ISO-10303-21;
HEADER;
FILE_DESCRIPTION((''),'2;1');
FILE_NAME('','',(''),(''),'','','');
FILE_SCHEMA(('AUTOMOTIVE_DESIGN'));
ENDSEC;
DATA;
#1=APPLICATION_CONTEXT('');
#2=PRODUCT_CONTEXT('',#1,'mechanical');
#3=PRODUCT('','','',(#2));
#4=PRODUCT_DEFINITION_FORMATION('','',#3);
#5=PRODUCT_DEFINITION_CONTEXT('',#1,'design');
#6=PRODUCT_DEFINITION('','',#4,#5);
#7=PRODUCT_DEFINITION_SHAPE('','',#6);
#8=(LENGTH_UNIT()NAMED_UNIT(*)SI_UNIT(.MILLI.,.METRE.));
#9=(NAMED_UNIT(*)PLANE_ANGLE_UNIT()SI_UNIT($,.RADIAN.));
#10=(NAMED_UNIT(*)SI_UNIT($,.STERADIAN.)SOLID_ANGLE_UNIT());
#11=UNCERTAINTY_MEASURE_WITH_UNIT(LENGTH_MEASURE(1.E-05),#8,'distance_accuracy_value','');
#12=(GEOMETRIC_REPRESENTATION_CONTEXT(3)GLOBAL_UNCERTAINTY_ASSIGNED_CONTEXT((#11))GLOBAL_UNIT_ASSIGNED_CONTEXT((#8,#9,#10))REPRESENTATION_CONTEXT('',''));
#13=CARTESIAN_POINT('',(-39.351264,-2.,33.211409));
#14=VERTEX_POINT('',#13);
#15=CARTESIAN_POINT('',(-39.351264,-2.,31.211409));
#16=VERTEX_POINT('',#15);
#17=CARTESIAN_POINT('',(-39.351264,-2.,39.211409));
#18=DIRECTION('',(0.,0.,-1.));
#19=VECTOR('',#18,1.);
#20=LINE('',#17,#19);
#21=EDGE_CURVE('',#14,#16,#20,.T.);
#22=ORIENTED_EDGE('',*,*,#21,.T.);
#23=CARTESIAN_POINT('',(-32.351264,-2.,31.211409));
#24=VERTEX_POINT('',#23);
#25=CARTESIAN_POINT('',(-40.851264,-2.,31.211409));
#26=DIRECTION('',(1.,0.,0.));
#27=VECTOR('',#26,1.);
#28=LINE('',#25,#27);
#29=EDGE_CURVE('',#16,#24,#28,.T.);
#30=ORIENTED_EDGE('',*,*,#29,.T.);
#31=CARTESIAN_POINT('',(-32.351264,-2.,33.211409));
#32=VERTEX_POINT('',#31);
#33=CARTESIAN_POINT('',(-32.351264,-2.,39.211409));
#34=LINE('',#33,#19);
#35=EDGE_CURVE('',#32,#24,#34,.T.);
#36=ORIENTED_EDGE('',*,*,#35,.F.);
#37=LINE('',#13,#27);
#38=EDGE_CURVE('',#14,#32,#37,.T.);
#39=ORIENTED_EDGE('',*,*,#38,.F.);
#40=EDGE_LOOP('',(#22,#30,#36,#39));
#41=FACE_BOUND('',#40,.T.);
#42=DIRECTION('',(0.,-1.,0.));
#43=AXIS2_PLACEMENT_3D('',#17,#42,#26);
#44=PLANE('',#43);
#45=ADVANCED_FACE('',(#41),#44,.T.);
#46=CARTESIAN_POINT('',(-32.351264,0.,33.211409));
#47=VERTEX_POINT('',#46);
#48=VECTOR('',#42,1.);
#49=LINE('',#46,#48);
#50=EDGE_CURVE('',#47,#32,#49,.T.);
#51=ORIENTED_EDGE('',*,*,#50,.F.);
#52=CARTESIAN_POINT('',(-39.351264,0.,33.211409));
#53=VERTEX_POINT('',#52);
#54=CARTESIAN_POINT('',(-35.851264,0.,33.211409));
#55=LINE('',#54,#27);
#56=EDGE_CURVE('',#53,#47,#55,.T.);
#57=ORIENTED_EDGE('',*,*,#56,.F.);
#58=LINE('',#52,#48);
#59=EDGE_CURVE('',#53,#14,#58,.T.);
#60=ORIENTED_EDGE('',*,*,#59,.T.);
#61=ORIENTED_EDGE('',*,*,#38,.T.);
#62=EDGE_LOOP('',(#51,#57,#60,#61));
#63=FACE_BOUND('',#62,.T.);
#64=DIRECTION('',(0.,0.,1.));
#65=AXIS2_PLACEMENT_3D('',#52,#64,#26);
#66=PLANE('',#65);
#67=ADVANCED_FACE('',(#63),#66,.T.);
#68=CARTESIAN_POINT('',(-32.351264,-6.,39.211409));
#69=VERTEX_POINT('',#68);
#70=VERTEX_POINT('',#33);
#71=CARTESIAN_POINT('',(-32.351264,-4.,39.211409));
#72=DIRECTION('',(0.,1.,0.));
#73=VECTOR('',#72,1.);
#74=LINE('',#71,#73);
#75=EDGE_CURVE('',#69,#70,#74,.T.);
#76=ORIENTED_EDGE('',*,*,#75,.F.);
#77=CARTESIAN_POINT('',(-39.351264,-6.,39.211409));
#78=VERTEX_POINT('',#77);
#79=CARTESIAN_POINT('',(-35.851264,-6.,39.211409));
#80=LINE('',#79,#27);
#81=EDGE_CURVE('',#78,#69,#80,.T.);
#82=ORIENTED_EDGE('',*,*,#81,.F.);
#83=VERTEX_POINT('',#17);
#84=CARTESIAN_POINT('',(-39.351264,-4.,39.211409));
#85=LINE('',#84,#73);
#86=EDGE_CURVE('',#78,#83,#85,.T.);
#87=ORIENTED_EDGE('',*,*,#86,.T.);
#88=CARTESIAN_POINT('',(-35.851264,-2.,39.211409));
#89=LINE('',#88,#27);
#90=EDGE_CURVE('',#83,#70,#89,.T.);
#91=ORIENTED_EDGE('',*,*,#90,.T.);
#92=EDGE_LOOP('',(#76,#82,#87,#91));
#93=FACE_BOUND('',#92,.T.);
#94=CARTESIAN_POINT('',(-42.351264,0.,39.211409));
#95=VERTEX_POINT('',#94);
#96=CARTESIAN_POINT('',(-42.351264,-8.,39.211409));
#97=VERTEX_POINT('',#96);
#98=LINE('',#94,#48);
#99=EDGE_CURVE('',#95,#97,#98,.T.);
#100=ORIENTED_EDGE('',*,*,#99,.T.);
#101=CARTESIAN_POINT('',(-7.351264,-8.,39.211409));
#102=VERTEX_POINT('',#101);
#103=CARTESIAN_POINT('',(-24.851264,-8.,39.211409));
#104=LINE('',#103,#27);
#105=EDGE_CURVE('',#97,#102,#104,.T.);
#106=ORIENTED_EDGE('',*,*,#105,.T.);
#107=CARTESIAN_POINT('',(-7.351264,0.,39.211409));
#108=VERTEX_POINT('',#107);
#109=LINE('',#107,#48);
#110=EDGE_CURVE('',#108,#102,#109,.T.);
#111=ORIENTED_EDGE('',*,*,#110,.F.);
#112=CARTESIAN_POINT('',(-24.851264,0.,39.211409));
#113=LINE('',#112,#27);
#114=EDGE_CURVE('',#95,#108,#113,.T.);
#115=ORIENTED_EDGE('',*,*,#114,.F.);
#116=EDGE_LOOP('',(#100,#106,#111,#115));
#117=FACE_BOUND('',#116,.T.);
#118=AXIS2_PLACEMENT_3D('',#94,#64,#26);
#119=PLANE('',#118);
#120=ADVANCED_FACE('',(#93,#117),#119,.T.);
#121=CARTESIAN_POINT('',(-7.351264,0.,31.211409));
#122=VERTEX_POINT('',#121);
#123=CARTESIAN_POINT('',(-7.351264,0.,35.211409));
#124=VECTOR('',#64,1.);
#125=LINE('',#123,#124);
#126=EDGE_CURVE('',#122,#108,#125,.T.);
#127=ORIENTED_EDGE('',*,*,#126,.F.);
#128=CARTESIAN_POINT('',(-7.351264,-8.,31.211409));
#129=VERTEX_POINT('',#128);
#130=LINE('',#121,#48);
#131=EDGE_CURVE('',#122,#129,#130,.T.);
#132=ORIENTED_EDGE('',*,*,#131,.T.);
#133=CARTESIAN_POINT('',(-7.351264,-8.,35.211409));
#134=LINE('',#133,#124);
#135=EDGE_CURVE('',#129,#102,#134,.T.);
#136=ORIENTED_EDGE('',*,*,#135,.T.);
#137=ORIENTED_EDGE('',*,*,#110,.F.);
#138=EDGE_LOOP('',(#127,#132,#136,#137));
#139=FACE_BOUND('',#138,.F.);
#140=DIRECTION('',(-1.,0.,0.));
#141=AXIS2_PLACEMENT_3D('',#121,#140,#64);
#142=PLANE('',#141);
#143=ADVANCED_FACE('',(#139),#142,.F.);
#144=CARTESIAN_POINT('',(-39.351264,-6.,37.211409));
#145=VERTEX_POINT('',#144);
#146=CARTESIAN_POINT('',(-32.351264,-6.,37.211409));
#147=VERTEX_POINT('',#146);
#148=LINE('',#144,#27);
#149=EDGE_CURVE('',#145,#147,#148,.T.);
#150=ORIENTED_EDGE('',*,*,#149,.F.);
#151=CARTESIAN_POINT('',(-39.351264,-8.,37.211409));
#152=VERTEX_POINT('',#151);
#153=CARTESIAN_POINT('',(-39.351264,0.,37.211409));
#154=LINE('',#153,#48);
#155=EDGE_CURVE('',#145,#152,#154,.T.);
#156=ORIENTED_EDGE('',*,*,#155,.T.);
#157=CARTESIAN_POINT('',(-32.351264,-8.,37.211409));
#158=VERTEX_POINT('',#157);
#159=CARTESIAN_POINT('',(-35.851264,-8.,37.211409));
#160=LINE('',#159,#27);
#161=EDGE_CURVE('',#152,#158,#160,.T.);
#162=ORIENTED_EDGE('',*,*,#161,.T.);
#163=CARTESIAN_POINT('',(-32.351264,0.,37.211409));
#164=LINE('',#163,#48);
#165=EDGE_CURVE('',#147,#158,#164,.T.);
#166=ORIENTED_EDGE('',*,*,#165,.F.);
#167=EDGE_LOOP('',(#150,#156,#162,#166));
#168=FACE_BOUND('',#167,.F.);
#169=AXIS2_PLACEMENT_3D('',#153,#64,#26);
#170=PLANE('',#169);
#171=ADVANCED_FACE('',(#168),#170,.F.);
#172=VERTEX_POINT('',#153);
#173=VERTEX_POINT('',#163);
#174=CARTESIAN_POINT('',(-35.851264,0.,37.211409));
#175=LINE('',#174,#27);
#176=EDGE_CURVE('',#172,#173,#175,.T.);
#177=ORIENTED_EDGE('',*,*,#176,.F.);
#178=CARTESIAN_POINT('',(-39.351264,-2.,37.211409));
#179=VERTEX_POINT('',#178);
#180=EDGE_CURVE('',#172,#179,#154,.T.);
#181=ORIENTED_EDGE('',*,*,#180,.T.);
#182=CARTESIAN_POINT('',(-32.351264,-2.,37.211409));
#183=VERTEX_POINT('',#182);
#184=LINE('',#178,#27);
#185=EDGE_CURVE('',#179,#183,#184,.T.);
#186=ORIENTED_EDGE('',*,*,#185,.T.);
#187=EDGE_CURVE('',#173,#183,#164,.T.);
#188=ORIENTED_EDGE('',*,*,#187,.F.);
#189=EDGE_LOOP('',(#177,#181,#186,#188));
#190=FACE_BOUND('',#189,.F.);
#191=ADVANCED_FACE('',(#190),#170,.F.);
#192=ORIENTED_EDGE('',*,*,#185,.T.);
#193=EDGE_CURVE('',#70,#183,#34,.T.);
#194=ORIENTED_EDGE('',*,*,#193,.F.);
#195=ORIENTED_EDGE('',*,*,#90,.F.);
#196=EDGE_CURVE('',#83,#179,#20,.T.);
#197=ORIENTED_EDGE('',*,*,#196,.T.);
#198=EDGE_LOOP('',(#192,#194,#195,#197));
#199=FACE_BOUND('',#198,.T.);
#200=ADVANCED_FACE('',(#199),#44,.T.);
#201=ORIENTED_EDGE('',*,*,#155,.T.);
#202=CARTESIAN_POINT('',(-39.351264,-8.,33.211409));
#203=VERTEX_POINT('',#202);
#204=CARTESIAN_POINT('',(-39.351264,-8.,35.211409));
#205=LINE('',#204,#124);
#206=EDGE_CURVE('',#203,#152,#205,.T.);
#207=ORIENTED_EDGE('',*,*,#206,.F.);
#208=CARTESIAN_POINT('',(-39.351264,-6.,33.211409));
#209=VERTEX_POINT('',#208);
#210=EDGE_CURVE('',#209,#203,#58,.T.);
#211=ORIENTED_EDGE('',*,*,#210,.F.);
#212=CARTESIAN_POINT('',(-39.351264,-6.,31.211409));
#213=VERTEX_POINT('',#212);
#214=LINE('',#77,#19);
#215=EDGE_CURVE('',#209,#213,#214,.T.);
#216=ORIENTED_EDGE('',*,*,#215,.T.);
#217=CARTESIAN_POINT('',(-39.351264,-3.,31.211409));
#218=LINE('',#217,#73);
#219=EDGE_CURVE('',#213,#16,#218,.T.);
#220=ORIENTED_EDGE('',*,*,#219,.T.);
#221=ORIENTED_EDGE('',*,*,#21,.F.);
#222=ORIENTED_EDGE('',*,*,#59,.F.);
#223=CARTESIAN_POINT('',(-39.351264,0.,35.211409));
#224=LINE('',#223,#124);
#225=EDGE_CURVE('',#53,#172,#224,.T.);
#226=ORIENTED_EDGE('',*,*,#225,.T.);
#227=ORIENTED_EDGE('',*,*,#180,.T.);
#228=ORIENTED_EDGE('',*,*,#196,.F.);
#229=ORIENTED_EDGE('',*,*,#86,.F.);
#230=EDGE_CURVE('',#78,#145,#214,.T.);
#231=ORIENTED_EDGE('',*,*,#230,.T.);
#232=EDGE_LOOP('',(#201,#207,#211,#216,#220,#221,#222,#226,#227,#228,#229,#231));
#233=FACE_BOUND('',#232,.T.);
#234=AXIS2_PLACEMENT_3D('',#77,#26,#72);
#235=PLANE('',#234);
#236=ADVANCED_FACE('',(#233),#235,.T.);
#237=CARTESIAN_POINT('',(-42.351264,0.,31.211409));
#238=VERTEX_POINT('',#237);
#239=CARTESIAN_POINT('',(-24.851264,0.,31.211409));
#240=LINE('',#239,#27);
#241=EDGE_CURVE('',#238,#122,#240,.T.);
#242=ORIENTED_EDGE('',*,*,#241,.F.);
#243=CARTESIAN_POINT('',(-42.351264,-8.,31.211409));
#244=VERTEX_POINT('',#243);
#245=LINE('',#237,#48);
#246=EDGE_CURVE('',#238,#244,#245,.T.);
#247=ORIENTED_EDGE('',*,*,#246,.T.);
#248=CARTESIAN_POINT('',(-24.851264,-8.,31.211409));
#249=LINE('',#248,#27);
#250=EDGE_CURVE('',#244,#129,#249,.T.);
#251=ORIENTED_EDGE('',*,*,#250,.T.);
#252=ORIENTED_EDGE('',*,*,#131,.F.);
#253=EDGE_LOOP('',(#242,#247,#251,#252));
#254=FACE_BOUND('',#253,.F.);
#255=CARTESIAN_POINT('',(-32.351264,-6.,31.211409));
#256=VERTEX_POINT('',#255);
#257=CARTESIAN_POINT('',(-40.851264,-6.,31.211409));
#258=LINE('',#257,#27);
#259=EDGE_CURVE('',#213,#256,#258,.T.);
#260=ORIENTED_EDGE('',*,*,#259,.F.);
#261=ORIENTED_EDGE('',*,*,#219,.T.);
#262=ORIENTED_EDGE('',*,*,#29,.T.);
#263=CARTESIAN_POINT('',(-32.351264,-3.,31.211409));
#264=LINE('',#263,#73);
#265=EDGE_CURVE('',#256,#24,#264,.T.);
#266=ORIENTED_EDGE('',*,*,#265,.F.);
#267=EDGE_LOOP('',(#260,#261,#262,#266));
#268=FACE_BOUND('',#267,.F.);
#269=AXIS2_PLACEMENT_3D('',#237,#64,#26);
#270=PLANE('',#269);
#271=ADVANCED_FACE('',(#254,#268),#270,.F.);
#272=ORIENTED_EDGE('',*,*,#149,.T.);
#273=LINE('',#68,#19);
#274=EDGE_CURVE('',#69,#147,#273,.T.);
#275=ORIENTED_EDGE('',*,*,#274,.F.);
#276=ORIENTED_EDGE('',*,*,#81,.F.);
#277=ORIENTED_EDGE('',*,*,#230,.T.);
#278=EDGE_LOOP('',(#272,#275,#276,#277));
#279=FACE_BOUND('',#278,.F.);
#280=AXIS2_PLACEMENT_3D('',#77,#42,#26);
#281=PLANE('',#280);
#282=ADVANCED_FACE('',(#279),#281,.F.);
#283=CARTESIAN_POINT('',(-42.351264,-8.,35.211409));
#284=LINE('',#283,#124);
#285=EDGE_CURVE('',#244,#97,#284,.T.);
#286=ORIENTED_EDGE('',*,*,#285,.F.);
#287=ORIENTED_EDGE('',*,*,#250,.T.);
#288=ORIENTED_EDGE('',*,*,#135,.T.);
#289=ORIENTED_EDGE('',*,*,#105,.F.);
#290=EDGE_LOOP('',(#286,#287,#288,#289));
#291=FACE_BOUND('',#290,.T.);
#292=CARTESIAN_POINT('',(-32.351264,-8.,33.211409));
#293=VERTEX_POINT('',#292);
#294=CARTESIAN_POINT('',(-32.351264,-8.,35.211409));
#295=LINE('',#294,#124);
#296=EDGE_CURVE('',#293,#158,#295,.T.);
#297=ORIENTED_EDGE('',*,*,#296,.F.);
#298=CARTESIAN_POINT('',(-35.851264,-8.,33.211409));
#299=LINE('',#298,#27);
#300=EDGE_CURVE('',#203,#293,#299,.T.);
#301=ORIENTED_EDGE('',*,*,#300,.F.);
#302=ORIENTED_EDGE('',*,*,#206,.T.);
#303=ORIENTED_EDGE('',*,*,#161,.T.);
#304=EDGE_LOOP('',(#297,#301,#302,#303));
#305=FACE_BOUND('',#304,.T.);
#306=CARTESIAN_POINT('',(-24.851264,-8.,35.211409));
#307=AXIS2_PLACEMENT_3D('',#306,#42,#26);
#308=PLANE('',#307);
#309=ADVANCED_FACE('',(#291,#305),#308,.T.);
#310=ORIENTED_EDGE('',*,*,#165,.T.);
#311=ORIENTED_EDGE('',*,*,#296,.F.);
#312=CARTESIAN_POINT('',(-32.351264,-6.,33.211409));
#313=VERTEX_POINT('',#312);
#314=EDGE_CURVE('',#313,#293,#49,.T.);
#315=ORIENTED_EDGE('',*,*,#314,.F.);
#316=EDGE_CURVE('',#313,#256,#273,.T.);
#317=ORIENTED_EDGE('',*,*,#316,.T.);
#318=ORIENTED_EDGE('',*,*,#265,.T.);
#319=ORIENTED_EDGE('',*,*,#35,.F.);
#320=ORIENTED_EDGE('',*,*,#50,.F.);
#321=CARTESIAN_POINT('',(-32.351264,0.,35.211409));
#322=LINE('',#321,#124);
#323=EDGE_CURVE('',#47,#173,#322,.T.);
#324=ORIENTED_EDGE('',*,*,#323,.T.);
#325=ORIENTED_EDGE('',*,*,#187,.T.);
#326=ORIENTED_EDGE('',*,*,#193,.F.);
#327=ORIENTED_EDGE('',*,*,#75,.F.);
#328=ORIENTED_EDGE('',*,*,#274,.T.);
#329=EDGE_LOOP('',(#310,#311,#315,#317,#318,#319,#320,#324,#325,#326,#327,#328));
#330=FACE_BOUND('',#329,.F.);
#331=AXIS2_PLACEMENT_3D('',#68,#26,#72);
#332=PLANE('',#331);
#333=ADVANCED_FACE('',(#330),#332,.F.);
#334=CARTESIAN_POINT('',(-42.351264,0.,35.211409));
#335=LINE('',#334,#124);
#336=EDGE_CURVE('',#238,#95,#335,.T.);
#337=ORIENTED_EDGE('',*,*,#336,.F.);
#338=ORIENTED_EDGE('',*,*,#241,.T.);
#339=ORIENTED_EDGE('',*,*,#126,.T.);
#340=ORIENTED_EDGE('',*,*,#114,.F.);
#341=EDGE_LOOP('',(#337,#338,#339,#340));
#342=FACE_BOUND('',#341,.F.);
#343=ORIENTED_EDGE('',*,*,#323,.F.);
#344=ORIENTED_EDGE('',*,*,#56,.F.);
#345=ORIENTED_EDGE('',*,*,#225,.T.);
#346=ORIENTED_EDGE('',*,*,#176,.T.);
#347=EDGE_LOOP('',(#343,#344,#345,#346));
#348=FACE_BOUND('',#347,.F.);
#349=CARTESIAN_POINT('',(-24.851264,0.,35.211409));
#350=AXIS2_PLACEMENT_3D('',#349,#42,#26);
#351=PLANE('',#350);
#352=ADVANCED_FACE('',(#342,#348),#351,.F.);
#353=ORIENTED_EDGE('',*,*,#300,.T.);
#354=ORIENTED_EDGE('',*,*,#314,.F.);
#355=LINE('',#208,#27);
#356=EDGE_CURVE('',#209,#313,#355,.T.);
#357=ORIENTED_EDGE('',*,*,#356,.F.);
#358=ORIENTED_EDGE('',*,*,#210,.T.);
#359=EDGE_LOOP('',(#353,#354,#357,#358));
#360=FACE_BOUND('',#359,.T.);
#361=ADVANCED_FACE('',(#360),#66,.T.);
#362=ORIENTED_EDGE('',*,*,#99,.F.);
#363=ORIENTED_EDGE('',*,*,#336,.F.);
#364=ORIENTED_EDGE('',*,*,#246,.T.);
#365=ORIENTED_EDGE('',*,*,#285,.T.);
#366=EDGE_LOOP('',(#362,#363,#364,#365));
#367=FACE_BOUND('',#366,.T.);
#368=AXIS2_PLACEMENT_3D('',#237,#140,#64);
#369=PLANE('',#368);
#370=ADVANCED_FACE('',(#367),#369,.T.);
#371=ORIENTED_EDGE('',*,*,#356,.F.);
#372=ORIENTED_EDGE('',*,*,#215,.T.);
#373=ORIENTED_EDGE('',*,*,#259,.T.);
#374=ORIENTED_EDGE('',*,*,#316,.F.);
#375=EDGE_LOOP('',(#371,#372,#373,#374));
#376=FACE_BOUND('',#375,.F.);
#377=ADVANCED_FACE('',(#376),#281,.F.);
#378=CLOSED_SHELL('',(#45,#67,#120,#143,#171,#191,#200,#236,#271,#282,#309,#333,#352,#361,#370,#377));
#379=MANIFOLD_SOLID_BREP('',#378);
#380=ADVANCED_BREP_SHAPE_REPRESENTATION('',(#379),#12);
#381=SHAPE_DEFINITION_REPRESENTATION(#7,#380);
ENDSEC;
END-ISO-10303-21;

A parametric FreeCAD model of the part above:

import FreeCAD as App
import Part
import Sketcher

V = App.Vector

doc = App.newDocument("Part")
body = doc.addObject("PartDesign::Body", "Body")

# Sketch on XZ plane
sketch1 = body.newObject("Sketcher::SketchObject", "Sketch")
sketch1.AttachmentSupport = (doc.getObject("XZ_Plane"), [""])
sketch1.MapMode = "FlatFace"
sketch1.addGeometry([
    Part.LineSegment(V(-42.4, 39.2, 0), V(-42.4, 31.2, 0)),  # 0
    Part.LineSegment(V(-42.4, 31.2, 0), V(-7.4, 31.2, 0)),  # 1
    Part.LineSegment(V(-7.4, 31.2, 0), V(-7.4, 39.2, 0)),  # 2
    Part.LineSegment(V(-7.4, 39.2, 0), V(-42.4, 39.2, 0)),  # 3
    Part.LineSegment(V(-32.4, 33.2, 0), V(-39.4, 33.2, 0)),  # 4
    Part.LineSegment(V(-39.4, 33.2, 0), V(-39.4, 37.2, 0)),  # 5
    Part.LineSegment(V(-39.4, 37.2, 0), V(-32.4, 37.2, 0)),  # 6
    Part.LineSegment(V(-32.4, 37.2, 0), V(-32.4, 33.2, 0)),  # 7
], False)
sketch1.addConstraint([
    Sketcher.Constraint("Coincident", 0, 2, 1, 1),
    Sketcher.Constraint("Coincident", 1, 2, 2, 1),
    Sketcher.Constraint("Coincident", 2, 2, 3, 1),
    Sketcher.Constraint("Coincident", 3, 2, 0, 1),
    Sketcher.Constraint("Coincident", 4, 2, 5, 1),
    Sketcher.Constraint("Coincident", 5, 2, 6, 1),
    Sketcher.Constraint("Coincident", 6, 2, 7, 1),
    Sketcher.Constraint("Coincident", 7, 2, 4, 1),
    Sketcher.Constraint("Vertical", 0),
    Sketcher.Constraint("Horizontal", 1),
    Sketcher.Constraint("Vertical", 2),
    Sketcher.Constraint("Horizontal", 3),
    Sketcher.Constraint("Horizontal", 4),
    Sketcher.Constraint("Vertical", 5),
    Sketcher.Constraint("Horizontal", 6),
    Sketcher.Constraint("Vertical", 7),
    Sketcher.Constraint("DistanceX", 1, 1, 1, 2, 35.0),
    Sketcher.Constraint("DistanceX", 4, 2, 4, 1, 7.0),
    Sketcher.Constraint("DistanceY", 0, 2, 0, 1, 8.0),
    Sketcher.Constraint("DistanceY", 5, 1, 5, 2, 4.0),
    Sketcher.Constraint("DistanceX", 0, 2, 4, 2, 3.0),
    Sketcher.Constraint("DistanceY", 0, 2, 4, 2, 2.0),
    Sketcher.Constraint("DistanceY", -1, 1, 0, 2, 31.211409),
    Sketcher.Constraint("DistanceX", 0, 2, -1, 1, 42.351264),
])
pad1 = body.newObject("PartDesign::Pad", "Pad")
pad1.Profile = sketch1
pad1.Length = 8

# Sketch on XY plane
sketch2 = body.newObject("Sketcher::SketchObject", "Sketch001")
sketch2.AttachmentSupport = (doc.getObject("XY_Plane"), [""])
sketch2.MapMode = "FlatFace"
sketch2.AttachmentOffset = App.Placement(V(0, 0, 39.211409), App.Rotation())
sketch2.addGeometry([
    Part.LineSegment(V(-39.4, -2, 0), V(-39.4, -6, 0)),
    Part.LineSegment(V(-39.4, -6, 0), V(-32.4, -6, 0)),
    Part.LineSegment(V(-32.4, -6, 0), V(-32.4, -2, 0)),
    Part.LineSegment(V(-32.4, -2, 0), V(-39.4, -2, 0)),
], False)
sketch2.addConstraint([
    Sketcher.Constraint("Coincident", 0, 2, 1, 1),
    Sketcher.Constraint("Coincident", 1, 2, 2, 1),
    Sketcher.Constraint("Coincident", 2, 2, 3, 1),
    Sketcher.Constraint("Coincident", 3, 2, 0, 1),
    Sketcher.Constraint("Vertical", 0),
    Sketcher.Constraint("Horizontal", 1),
    Sketcher.Constraint("Vertical", 2),
    Sketcher.Constraint("Horizontal", 3),
    Sketcher.Constraint("DistanceX", 1, 1, 1, 2, 7.0),
    Sketcher.Constraint("DistanceY", 0, 2, 0, 1, 4.0),
    Sketcher.Constraint("DistanceY", 0, 2, -1, 1, 6.0),
    Sketcher.Constraint("DistanceX", 0, 2, -1, 1, 39.351264),
])
pocket1 = body.newObject("PartDesign::Pocket", "Pocket")
pocket1.Profile = sketch2
pocket1.Length = 25

doc.recompute()
